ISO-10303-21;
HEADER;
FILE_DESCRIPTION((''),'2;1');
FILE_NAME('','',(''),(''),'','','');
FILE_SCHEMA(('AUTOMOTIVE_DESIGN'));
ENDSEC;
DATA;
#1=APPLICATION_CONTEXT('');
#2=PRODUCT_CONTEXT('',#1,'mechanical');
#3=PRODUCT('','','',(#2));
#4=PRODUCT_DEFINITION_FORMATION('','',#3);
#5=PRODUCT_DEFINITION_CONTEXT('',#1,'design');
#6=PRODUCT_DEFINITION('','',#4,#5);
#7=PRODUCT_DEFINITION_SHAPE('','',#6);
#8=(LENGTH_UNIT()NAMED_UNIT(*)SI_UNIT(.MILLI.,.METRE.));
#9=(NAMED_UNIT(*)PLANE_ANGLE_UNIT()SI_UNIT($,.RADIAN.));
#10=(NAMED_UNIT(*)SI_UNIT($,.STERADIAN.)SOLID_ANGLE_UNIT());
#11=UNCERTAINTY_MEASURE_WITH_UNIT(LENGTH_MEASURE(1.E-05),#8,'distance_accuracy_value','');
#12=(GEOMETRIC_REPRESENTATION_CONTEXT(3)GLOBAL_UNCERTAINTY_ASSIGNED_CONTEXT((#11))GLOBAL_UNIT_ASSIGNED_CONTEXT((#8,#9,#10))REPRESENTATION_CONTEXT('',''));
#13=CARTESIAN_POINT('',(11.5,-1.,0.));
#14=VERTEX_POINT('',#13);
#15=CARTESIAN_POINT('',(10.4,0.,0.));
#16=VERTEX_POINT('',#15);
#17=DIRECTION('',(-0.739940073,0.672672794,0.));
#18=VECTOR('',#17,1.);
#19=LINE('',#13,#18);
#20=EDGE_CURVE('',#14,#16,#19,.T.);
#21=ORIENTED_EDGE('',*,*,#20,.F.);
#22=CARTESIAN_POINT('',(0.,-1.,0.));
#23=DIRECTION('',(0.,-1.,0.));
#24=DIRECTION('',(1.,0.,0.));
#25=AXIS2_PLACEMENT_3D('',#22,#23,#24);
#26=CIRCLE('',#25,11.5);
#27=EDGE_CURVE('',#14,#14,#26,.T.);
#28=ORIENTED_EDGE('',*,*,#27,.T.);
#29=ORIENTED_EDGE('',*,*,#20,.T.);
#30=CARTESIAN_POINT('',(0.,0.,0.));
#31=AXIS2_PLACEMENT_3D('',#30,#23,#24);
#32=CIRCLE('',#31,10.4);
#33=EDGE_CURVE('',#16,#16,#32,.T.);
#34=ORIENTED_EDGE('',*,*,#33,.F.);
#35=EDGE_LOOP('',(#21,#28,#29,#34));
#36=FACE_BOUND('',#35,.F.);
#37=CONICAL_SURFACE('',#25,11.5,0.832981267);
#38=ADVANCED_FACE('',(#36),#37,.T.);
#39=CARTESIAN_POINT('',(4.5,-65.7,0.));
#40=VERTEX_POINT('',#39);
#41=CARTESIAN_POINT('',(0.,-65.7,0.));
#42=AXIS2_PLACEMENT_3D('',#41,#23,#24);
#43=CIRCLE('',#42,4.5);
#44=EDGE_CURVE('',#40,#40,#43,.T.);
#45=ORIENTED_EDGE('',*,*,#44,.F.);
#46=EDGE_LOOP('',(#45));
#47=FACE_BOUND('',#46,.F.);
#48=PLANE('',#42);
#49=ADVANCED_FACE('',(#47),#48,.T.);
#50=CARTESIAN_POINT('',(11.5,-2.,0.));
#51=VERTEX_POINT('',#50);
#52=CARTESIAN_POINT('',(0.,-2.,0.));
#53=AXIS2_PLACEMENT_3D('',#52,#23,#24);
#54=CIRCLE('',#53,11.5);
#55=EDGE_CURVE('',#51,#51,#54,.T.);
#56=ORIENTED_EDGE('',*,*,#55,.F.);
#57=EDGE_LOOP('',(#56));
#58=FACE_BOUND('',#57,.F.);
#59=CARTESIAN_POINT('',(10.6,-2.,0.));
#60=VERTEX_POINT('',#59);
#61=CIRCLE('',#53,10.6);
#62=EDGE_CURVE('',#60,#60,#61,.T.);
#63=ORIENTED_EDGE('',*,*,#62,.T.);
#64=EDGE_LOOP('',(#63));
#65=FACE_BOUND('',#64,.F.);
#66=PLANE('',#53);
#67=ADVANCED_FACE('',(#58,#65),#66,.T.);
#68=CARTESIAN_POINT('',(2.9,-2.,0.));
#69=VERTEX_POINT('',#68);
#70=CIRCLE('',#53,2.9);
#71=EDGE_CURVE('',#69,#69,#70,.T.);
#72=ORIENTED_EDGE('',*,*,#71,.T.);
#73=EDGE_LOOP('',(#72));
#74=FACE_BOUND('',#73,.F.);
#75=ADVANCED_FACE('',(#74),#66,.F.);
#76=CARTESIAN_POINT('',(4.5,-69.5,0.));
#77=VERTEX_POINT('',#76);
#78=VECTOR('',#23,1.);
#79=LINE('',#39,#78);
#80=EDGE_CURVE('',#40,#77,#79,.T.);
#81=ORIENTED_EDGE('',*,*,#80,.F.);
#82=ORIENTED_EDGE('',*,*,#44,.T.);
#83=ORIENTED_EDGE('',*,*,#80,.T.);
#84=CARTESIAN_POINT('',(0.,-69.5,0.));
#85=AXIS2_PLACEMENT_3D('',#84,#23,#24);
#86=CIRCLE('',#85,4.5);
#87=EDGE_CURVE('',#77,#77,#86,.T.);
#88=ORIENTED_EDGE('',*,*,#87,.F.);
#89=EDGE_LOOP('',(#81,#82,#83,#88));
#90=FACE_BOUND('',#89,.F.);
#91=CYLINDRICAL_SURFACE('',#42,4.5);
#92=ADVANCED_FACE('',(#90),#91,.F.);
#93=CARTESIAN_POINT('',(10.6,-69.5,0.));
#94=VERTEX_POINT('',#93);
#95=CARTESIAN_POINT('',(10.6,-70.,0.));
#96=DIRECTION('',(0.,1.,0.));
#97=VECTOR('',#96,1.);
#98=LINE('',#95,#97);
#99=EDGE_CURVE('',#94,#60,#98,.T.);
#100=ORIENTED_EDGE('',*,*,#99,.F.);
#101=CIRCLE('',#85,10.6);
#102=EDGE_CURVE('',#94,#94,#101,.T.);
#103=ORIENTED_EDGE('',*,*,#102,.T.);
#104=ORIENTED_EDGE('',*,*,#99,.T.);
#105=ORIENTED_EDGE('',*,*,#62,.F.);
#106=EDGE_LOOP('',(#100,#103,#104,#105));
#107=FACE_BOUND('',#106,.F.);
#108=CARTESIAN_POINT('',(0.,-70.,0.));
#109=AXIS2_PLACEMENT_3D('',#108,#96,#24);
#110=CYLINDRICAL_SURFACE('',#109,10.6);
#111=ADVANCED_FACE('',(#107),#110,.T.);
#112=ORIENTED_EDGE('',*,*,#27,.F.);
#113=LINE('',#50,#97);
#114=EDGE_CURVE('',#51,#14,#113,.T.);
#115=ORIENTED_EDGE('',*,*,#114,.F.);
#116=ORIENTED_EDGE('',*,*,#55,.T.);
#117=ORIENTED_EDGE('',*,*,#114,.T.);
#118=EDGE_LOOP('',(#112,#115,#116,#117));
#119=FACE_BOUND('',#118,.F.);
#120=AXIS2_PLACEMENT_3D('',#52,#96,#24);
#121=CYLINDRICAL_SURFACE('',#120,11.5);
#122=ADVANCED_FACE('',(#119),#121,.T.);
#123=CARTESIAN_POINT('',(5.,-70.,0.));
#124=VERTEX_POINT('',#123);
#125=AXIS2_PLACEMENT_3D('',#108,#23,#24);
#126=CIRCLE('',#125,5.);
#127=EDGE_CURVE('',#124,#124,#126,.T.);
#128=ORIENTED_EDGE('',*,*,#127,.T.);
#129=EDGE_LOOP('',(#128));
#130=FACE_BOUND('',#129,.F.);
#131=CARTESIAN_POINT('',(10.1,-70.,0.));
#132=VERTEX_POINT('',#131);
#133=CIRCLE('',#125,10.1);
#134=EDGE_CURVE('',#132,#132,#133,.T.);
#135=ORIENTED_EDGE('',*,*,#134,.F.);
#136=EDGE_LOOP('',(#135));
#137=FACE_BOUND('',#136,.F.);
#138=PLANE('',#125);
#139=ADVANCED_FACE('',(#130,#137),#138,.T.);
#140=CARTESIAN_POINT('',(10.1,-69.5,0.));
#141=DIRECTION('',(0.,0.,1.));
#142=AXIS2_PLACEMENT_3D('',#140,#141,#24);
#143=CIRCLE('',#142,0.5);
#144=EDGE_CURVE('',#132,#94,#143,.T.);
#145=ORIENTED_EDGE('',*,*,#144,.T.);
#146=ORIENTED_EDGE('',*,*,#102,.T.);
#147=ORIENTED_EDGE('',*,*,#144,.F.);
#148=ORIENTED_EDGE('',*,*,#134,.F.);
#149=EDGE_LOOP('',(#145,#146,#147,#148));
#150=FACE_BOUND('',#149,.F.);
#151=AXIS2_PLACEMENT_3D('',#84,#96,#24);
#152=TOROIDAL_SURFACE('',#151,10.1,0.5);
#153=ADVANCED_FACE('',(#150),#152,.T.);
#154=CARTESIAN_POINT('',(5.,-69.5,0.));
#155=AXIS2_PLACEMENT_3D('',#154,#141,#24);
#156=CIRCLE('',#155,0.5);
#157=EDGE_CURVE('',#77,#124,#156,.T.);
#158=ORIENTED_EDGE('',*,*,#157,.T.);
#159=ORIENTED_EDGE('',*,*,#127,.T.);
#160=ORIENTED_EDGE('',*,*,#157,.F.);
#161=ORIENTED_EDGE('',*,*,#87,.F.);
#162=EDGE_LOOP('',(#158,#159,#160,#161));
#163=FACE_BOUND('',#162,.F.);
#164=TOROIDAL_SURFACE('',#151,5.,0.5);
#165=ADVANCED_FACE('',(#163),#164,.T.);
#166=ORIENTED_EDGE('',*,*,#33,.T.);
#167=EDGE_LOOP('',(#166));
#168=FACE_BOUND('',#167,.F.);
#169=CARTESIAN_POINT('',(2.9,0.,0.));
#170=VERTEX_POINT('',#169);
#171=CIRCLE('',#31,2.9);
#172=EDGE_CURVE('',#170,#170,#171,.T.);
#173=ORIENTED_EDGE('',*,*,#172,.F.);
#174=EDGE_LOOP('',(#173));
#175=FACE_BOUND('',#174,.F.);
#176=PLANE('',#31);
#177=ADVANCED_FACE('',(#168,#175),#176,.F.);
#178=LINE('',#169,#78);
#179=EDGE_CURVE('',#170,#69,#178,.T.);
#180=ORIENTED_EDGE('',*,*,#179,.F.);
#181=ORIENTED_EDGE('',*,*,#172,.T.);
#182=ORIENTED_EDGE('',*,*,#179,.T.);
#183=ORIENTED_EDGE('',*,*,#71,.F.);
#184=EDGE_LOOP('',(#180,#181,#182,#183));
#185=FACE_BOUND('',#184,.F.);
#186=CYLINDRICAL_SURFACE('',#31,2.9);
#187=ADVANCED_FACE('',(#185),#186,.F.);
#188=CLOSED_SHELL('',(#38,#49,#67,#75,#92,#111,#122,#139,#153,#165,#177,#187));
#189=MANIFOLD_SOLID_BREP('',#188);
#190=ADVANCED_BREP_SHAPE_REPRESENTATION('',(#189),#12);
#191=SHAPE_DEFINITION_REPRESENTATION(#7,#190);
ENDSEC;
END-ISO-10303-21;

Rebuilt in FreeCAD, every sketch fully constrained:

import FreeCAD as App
import Part
import Sketcher

V = App.Vector


def edges_at(feature, points):
    """Names of the edges that pass closest to the given points."""
    edges = feature.Shape.Edges
    near = lambda p: min(range(len(edges)), key=lambda i: edges[i].distToShape(Part.Vertex(*p))[0])
    return sorted({f"Edge{near(p) + 1}" for p in points})


def add_polygon(sketch, points):
    """Adds a closed chain of lines whose ends are joined by coincident constraints."""
    first, n = sketch.GeometryCount, len(points)
    for a, b in zip(points, points[1:] + points[:1]):
        sketch.addGeometry(Part.LineSegment(App.Vector(*a, 0), App.Vector(*b, 0)), False)
    for i in range(n):
        sketch.addConstraint(Sketcher.Constraint("Coincident", first + i, 2, first + (i + 1) % n, 1))

doc = App.newDocument("Part")
body = doc.addObject("PartDesign::Body", "Body")

# Sketch on XY plane
sketch1 = body.newObject("Sketcher::SketchObject", "Sketch")
sketch1.AttachmentSupport = (doc.getObject("XY_Plane"), [""])
sketch1.MapMode = "FlatFace"
add_polygon(sketch1, [(2.9, -2), (0, -2), (0, -65.7), (4.5, -65.7), (4.5, -70), (10.6, -70), (10.6, -2), (11.5, -2), (11.5, -1), (10.4, 0), (2.9, 0)])  # lines 0-10
sketch1.addConstraint(Sketcher.Constraint("Horizontal", 0))
sketch1.addConstraint(Sketcher.Constraint("Vertical", 1))
sketch1.addConstraint(Sketcher.Constraint("Horizontal", 2))
sketch1.addConstraint(Sketcher.Constraint("Vertical", 3))
sketch1.addConstraint(Sketcher.Constraint("Horizontal", 4))
sketch1.addConstraint(Sketcher.Constraint("Vertical", 5))
sketch1.addConstraint(Sketcher.Constraint("Horizontal", 6))
sketch1.addConstraint(Sketcher.Constraint("Vertical", 7))
sketch1.addConstraint(Sketcher.Constraint("Horizontal", 9))
sketch1.addConstraint(Sketcher.Constraint("Vertical", 10))
sketch1.addConstraint(Sketcher.Constraint("PointOnObject", 0, 2, -2))
sketch1.addConstraint(Sketcher.Constraint("PointOnObject", 8, 2, -1))
sketch1.addConstraint(Sketcher.Constraint("Horizontal", 0, 2, 5, 2))
sketch1.addConstraint(Sketcher.Constraint("DistanceY", 5, 1, 5, 2, 68.0))
sketch1.addConstraint(Sketcher.Constraint("DistanceY", 7, 1, 7, 2, 1.0))
sketch1.addConstraint(Sketcher.Constraint("DistanceY", 10, 2, 10, 1, 2.0))
sketch1.addConstraint(Sketcher.Constraint("DistanceX", 0, 2, 0, 1, 2.9))
sketch1.addConstraint(Sketcher.Constraint("DistanceX", 2, 1, 2, 2, 4.5))
sketch1.addConstraint(Sketcher.Constraint("DistanceX", 4, 1, 4, 2, 6.1))
sketch1.addConstraint(Sketcher.Constraint("DistanceX", 6, 1, 6, 2, 0.9))
sketch1.addConstraint(Sketcher.Constraint("DistanceX", 9, 2, 9, 1, 7.5))
sketch1.addConstraint(Sketcher.Constraint("DistanceY", 1, 2, 1, 1, 63.7))
revolution = body.newObject("PartDesign::Revolution", "Revolution")
revolution.Profile = sketch1
revolution.ReferenceAxis = (sketch1, ["V_Axis"])
revolution.Angle = 360
doc.recompute()

fillet = body.newObject("PartDesign::Fillet", "Fillet")
fillet.Base = (revolution, edges_at(revolution, [(-10.6, -70, 0), (-4.5, -70, 0)]))
fillet.Radius = 0.5

doc.recompute()
